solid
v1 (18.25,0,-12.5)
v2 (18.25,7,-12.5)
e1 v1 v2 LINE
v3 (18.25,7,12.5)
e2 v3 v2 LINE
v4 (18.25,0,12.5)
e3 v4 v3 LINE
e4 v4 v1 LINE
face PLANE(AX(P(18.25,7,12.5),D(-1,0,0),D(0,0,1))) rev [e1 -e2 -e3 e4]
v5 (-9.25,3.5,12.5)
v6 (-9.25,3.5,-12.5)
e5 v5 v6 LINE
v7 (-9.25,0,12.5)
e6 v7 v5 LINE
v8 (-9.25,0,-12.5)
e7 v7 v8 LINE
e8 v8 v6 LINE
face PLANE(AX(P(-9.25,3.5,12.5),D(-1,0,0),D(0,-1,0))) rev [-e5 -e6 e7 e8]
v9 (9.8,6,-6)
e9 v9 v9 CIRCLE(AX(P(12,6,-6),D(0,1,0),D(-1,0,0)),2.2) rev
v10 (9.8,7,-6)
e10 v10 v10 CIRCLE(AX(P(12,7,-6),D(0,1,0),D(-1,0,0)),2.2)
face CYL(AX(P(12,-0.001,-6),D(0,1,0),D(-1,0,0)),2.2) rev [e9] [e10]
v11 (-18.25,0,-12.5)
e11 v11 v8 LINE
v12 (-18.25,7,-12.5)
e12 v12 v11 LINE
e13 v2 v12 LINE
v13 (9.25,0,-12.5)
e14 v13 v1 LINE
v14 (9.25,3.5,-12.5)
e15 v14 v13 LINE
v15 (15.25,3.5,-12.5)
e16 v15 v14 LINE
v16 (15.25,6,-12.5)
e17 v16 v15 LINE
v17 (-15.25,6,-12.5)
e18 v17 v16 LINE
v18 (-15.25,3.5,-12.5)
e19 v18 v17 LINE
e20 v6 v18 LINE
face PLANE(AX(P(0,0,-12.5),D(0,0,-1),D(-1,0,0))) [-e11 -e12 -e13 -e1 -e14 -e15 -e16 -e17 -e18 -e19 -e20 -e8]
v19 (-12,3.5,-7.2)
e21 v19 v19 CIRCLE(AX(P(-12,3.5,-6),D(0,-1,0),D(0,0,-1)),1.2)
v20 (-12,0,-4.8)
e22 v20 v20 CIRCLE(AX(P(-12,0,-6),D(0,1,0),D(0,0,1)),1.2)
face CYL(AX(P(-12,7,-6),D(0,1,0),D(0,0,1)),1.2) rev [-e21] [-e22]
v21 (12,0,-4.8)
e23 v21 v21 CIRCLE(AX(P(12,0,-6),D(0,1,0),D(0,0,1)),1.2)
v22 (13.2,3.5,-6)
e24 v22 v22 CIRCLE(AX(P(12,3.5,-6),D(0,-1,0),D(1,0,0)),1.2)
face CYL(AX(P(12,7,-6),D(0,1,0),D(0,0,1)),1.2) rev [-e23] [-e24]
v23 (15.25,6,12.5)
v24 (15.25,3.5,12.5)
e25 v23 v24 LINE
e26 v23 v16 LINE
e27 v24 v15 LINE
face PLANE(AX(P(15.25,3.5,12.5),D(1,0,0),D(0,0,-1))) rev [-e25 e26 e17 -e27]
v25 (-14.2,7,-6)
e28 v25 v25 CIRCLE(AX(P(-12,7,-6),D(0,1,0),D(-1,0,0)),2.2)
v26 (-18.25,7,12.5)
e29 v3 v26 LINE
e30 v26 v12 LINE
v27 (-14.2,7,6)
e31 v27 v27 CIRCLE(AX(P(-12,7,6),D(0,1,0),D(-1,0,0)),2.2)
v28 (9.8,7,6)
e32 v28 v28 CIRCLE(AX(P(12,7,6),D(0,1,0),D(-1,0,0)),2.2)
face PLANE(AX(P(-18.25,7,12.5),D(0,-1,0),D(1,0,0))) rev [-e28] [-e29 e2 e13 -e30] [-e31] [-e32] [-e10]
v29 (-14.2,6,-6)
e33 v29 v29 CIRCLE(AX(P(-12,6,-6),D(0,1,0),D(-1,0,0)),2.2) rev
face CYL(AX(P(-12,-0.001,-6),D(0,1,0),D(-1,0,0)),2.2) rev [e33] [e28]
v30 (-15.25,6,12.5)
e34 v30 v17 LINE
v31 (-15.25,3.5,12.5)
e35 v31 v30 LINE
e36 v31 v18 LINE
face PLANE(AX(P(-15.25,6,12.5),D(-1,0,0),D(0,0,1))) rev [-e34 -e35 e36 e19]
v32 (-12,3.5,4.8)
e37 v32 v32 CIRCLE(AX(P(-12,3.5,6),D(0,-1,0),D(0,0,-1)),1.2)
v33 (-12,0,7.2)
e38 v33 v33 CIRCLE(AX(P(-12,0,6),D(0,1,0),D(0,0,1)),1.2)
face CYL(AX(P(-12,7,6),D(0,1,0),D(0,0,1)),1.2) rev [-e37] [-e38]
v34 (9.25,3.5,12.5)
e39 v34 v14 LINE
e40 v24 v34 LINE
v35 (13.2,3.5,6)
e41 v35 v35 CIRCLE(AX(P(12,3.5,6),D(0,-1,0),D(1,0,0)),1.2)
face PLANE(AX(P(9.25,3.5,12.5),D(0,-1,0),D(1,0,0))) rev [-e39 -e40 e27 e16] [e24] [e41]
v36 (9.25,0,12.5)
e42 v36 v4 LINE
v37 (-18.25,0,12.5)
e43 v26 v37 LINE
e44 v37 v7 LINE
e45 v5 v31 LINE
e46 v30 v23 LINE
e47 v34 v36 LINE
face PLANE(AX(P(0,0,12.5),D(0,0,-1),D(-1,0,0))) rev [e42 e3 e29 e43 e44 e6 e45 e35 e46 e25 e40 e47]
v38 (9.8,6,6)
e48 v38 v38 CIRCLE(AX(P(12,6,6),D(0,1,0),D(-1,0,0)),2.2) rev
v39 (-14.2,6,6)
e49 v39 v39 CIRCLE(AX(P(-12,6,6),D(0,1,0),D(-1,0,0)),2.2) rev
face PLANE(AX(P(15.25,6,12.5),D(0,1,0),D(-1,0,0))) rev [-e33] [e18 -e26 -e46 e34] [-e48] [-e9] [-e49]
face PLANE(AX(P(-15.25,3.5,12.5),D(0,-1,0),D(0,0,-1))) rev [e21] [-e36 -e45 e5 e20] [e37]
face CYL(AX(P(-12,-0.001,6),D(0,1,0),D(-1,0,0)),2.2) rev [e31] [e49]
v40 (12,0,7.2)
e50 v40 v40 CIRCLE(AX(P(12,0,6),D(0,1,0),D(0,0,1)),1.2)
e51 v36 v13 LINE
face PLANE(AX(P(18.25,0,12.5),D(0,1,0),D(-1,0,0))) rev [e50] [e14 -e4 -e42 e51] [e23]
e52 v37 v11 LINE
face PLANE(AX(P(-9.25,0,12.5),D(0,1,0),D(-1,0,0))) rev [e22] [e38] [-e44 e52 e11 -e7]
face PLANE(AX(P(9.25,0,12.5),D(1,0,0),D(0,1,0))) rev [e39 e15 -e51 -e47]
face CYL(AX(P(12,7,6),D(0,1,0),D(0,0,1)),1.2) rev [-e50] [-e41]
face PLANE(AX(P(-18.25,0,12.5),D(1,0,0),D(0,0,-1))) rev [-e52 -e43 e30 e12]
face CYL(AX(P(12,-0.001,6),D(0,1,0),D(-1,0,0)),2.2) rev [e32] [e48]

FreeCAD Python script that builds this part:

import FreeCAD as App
import Part
import Sketcher
from FreeCAD import Vector

doc = App.newDocument("Part")
body = doc.addObject("PartDesign::Body", "Body")

sketch1 = body.newObject("Sketcher::SketchObject", "Sketch")
sketch1.AttachmentSupport = (doc.getObject("XY_Plane"), [""])
sketch1.MapMode = "FlatFace"
sketch1.addGeometry(Part.LineSegment(Vector(-18.2, 0, 0), Vector(-9.2, 0, 0)), False)
sketch1.addGeometry(Part.LineSegment(Vector(-9.2, 0, 0), Vector(-9.2, 3.5, 0)), False)
sketch1.addGeometry(Part.LineSegment(Vector(-9.2, 3.5, 0), Vector(-15.2, 3.5, 0)), False)
sketch1.addGeometry(Part.LineSegment(Vector(-15.2, 3.5, 0), Vector(-15.2, 6, 0)), False)
sketch1.addGeometry(Part.LineSegment(Vector(-15.2, 6, 0), Vector(15.2, 6, 0)), False)
sketch1.addGeometry(Part.LineSegment(Vector(15.2, 6, 0), Vector(15.2, 3.5, 0)), False)
sketch1.addGeometry(Part.LineSegment(Vector(15.2, 3.5, 0), Vector(9.2, 3.5, 0)), False)
sketch1.addGeometry(Part.LineSegment(Vector(9.2, 3.5, 0), Vector(9.2, 0, 0)), False)
sketch1.addGeometry(Part.LineSegment(Vector(9.2, 0, 0), Vector(18.2, 0, 0)), False)
sketch1.addGeometry(Part.LineSegment(Vector(18.2, 0, 0), Vector(18.2, 7, 0)), False)
sketch1.addGeometry(Part.LineSegment(Vector(18.2, 7, 0), Vector(-18.2, 7, 0)), False)
sketch1.addGeometry(Part.LineSegment(Vector(-18.2, 7, 0), Vector(-18.2, 0, 0)), False)
sketch1.addConstraint(Sketcher.Constraint("Coincident", 0, 2, 1, 1))
sketch1.addConstraint(Sketcher.Constraint("Coincident", 1, 2, 2, 1))
sketch1.addConstraint(Sketcher.Constraint("Coincident", 2, 2, 3, 1))
sketch1.addConstraint(Sketcher.Constraint("Coincident", 3, 2, 4, 1))
sketch1.addConstraint(Sketcher.Constraint("Coincident", 4, 2, 5, 1))
sketch1.addConstraint(Sketcher.Constraint("Coincident", 5, 2, 6, 1))
sketch1.addConstraint(Sketcher.Constraint("Coincident", 6, 2, 7, 1))
sketch1.addConstraint(Sketcher.Constraint("Coincident", 7, 2, 8, 1))
sketch1.addConstraint(Sketcher.Constraint("Coincident", 8, 2, 9, 1))
sketch1.addConstraint(Sketcher.Constraint("Coincident", 9, 2, 10, 1))
sketch1.addConstraint(Sketcher.Constraint("Coincident", 10, 2, 11, 1))
sketch1.addConstraint(Sketcher.Constraint("Coincident", 11, 2, 0, 1))
sketch1.addConstraint(Sketcher.Constraint("Horizontal", 0))
sketch1.addConstraint(Sketcher.Constraint("Vertical", 1))
sketch1.addConstraint(Sketcher.Constraint("Horizontal", 2))
sketch1.addConstraint(Sketcher.Constraint("Vertical", 3))
sketch1.addConstraint(Sketcher.Constraint("Horizontal", 4))
sketch1.addConstraint(Sketcher.Constraint("Vertical", 5))
sketch1.addConstraint(Sketcher.Constraint("Horizontal", 6))
sketch1.addConstraint(Sketcher.Constraint("Vertical", 7))
sketch1.addConstraint(Sketcher.Constraint("Horizontal", 8))
sketch1.addConstraint(Sketcher.Constraint("Vertical", 9))
sketch1.addConstraint(Sketcher.Constraint("Horizontal", 10))
sketch1.addConstraint(Sketcher.Constraint("Vertical", 11))
sketch1.addConstraint(Sketcher.Constraint("Symmetric", 0, 2, 7, 2, -1, 1))
sketch1.addConstraint(Sketcher.Constraint("Symmetric", 2, 2, 5, 2, -2))
sketch1.addConstraint(Sketcher.Constraint("Symmetric", 8, 2, 11, 2, -2))
sketch1.addConstraint(Sketcher.Constraint("DistanceX", 0, 1, 0, 2, 9.0))
sketch1.addConstraint(Sketcher.Constraint("DistanceX", 2, 2, 2, 1, 6.0))
sketch1.addConstraint(Sketcher.Constraint("DistanceY", 9, 1, 9, 2, 7.0))
sketch1.addConstraint(Sketcher.Constraint("DistanceX", 4, 1, 4, 2, 30.5))
sketch1.addConstraint(Sketcher.Constraint("DistanceY", 1, 1, 1, 2, 3.5))
sketch1.addConstraint(Sketcher.Constraint("DistanceY", 3, 1, 3, 2, 2.5))
pad1 = body.newObject("PartDesign::Pad", "Pad")
pad1.Profile = sketch1
pad1.Length = 25
pad1.Midplane = True

sketch2 = body.newObject("Sketcher::SketchObject", "Sketch001")
sketch2.AttachmentSupport = (doc.getObject("XZ_Plane"), [""])
sketch2.MapMode = "FlatFace"
sketch2.AttachmentOffset = App.Placement(Vector(0, 0, -7), App.Rotation())
sketch2.addGeometry(Part.Circle(Vector(-12, -6, 0), Vector(0, 0, 1), 1.2), False)
sketch2.addGeometry(Part.Circle(Vector(-12, 6, 0), Vector(0, 0, 1), 1.2), False)
sketch2.addGeometry(Part.Circle(Vector(12, 6, 0), Vector(0, 0, 1), 1.2), False)
sketch2.addGeometry(Part.Circle(Vector(12, -6, 0), Vector(0, 0, 1), 1.2), False)
sketch2.addConstraint(Sketcher.Constraint("Equal", 0, 1))
sketch2.addConstraint(Sketcher.Constraint("Equal", 1, 2))
sketch2.addConstraint(Sketcher.Constraint("Equal", 2, 3))
sketch2.addConstraint(Sketcher.Constraint("Symmetric", 0, 3, 2, 3, -1, 1))
sketch2.addConstraint(Sketcher.Constraint("Symmetric", 1, 3, 3, 3, -1, 1))
sketch2.addConstraint(Sketcher.Constraint("Symmetric", 1, 3, 2, 3, -2))
sketch2.addConstraint(Sketcher.Constraint("Diameter", 0, 2.4))
sketch2.addConstraint(Sketcher.Constraint("DistanceX", 0, 3, -1, 1, 12.0))
sketch2.addConstraint(Sketcher.Constraint("DistanceY", 0, 3, -1, 1, 6.0))
doc.recompute()
hole = body.newObject("PartDesign::Hole", "Hole")
hole.Profile = sketch2
hole.ThreadType = "None"
hole.Diameter = 2.4
hole.DepthType = "ThroughAll"
hole.HoleCutType = "Countersink"
hole.HoleCutDiameter = 4.4
hole.HoleCutCountersinkAngle = 90
hole.Reversed = True

sketch3 = body.newObject("Sketcher::SketchObject", "Sketch002")
sketch3.AttachmentSupport = (doc.getObject("XZ_Plane"), [""])
sketch3.MapMode = "FlatFace"
sketch3.AttachmentOffset = App.Placement(Vector(0, 0, -7), App.Rotation())
sketch3.addGeometry(Part.Circle(Vector(-12, 6, 0), Vector(0, 0, 1), 2.2), False)
sketch3.addConstraint(Sketcher.Constraint("Diameter", 0, 4.4))
sketch3.addConstraint(Sketcher.Constraint("DistanceX", 0, 3, -1, 1, 12.0))
sketch3.addConstraint(Sketcher.Constraint("DistanceY", -1, 1, 0, 3, 6.0))
pocket1 = body.newObject("PartDesign::Pocket", "Pocket")
pocket1.Profile = sketch3
pocket1.Length = 1
pocket1.Reversed = True

sketch4 = body.newObject("Sketcher::SketchObject", "Sketch003")
sketch4.AttachmentSupport = (doc.getObject("XZ_Plane"), [""])
sketch4.MapMode = "FlatFace"
sketch4.AttachmentOffset = App.Placement(Vector(0, 0, -7), App.Rotation())
sketch4.addGeometry(Part.Circle(Vector(12, 6, 0), Vector(0, 0, 1), 2.2), False)
sketch4.addConstraint(Sketcher.Constraint("Diameter", 0, 4.4))
sketch4.addConstraint(Sketcher.Constraint("DistanceX", -1, 1, 0, 3, 12.0))
sketch4.addConstraint(Sketcher.Constraint("DistanceY", -1, 1, 0, 3, 6.0))
pocket2 = body.newObject("PartDesign::Pocket", "Pocket001")
pocket2.Profile = sketch4
pocket2.Length = 1
pocket2.Reversed = True

sketch5 = body.newObject("Sketcher::SketchObject", "Sketch004")
sketch5.AttachmentSupport = (doc.getObject("XZ_Plane"), [""])
sketch5.MapMode = "FlatFace"
sketch5.AttachmentOffset = App.Placement(Vector(0, 0, -7), App.Rotation())
sketch5.addGeometry(Part.Circle(Vector(12, -6, 0), Vector(0, 0, 1), 2.2), False)
sketch5.addConstraint(Sketcher.Constraint("Diameter", 0, 4.4))
sketch5.addConstraint(Sketcher.Constraint("DistanceX", -1, 1, 0, 3, 12.0))
sketch5.addConstraint(Sketcher.Constraint("DistanceY", 0, 3, -1, 1, 6.0))
pocket3 = body.newObject("PartDesign::Pocket", "Pocket002")
pocket3.Profile = sketch5
pocket3.Length = 1
pocket3.Reversed = True

sketch6 = body.newObject("Sketcher::SketchObject", "Sketch005")
sketch6.AttachmentSupport = (doc.getObject("XZ_Plane"), [""])
sketch6.MapMode = "FlatFace"
sketch6.AttachmentOffset = App.Placement(Vector(0, 0, -7), App.Rotation())
sketch6.addGeometry(Part.Circle(Vector(-12, -6, 0), Vector(0, 0, 1), 2.2), False)
sketch6.addConstraint(Sketcher.Constraint("Diameter", 0, 4.4))
sketch6.addConstraint(Sketcher.Constraint("DistanceX", 0, 3, -1, 1, 12.0))
sketch6.addConstraint(Sketcher.Constraint("DistanceY", 0, 3, -1, 1, 6.0))
pocket4 = body.newObject("PartDesign::Pocket", "Pocket003")
pocket4.Profile = sketch6
pocket4.Length = 1
pocket4.Reversed = True

doc.recompute()
